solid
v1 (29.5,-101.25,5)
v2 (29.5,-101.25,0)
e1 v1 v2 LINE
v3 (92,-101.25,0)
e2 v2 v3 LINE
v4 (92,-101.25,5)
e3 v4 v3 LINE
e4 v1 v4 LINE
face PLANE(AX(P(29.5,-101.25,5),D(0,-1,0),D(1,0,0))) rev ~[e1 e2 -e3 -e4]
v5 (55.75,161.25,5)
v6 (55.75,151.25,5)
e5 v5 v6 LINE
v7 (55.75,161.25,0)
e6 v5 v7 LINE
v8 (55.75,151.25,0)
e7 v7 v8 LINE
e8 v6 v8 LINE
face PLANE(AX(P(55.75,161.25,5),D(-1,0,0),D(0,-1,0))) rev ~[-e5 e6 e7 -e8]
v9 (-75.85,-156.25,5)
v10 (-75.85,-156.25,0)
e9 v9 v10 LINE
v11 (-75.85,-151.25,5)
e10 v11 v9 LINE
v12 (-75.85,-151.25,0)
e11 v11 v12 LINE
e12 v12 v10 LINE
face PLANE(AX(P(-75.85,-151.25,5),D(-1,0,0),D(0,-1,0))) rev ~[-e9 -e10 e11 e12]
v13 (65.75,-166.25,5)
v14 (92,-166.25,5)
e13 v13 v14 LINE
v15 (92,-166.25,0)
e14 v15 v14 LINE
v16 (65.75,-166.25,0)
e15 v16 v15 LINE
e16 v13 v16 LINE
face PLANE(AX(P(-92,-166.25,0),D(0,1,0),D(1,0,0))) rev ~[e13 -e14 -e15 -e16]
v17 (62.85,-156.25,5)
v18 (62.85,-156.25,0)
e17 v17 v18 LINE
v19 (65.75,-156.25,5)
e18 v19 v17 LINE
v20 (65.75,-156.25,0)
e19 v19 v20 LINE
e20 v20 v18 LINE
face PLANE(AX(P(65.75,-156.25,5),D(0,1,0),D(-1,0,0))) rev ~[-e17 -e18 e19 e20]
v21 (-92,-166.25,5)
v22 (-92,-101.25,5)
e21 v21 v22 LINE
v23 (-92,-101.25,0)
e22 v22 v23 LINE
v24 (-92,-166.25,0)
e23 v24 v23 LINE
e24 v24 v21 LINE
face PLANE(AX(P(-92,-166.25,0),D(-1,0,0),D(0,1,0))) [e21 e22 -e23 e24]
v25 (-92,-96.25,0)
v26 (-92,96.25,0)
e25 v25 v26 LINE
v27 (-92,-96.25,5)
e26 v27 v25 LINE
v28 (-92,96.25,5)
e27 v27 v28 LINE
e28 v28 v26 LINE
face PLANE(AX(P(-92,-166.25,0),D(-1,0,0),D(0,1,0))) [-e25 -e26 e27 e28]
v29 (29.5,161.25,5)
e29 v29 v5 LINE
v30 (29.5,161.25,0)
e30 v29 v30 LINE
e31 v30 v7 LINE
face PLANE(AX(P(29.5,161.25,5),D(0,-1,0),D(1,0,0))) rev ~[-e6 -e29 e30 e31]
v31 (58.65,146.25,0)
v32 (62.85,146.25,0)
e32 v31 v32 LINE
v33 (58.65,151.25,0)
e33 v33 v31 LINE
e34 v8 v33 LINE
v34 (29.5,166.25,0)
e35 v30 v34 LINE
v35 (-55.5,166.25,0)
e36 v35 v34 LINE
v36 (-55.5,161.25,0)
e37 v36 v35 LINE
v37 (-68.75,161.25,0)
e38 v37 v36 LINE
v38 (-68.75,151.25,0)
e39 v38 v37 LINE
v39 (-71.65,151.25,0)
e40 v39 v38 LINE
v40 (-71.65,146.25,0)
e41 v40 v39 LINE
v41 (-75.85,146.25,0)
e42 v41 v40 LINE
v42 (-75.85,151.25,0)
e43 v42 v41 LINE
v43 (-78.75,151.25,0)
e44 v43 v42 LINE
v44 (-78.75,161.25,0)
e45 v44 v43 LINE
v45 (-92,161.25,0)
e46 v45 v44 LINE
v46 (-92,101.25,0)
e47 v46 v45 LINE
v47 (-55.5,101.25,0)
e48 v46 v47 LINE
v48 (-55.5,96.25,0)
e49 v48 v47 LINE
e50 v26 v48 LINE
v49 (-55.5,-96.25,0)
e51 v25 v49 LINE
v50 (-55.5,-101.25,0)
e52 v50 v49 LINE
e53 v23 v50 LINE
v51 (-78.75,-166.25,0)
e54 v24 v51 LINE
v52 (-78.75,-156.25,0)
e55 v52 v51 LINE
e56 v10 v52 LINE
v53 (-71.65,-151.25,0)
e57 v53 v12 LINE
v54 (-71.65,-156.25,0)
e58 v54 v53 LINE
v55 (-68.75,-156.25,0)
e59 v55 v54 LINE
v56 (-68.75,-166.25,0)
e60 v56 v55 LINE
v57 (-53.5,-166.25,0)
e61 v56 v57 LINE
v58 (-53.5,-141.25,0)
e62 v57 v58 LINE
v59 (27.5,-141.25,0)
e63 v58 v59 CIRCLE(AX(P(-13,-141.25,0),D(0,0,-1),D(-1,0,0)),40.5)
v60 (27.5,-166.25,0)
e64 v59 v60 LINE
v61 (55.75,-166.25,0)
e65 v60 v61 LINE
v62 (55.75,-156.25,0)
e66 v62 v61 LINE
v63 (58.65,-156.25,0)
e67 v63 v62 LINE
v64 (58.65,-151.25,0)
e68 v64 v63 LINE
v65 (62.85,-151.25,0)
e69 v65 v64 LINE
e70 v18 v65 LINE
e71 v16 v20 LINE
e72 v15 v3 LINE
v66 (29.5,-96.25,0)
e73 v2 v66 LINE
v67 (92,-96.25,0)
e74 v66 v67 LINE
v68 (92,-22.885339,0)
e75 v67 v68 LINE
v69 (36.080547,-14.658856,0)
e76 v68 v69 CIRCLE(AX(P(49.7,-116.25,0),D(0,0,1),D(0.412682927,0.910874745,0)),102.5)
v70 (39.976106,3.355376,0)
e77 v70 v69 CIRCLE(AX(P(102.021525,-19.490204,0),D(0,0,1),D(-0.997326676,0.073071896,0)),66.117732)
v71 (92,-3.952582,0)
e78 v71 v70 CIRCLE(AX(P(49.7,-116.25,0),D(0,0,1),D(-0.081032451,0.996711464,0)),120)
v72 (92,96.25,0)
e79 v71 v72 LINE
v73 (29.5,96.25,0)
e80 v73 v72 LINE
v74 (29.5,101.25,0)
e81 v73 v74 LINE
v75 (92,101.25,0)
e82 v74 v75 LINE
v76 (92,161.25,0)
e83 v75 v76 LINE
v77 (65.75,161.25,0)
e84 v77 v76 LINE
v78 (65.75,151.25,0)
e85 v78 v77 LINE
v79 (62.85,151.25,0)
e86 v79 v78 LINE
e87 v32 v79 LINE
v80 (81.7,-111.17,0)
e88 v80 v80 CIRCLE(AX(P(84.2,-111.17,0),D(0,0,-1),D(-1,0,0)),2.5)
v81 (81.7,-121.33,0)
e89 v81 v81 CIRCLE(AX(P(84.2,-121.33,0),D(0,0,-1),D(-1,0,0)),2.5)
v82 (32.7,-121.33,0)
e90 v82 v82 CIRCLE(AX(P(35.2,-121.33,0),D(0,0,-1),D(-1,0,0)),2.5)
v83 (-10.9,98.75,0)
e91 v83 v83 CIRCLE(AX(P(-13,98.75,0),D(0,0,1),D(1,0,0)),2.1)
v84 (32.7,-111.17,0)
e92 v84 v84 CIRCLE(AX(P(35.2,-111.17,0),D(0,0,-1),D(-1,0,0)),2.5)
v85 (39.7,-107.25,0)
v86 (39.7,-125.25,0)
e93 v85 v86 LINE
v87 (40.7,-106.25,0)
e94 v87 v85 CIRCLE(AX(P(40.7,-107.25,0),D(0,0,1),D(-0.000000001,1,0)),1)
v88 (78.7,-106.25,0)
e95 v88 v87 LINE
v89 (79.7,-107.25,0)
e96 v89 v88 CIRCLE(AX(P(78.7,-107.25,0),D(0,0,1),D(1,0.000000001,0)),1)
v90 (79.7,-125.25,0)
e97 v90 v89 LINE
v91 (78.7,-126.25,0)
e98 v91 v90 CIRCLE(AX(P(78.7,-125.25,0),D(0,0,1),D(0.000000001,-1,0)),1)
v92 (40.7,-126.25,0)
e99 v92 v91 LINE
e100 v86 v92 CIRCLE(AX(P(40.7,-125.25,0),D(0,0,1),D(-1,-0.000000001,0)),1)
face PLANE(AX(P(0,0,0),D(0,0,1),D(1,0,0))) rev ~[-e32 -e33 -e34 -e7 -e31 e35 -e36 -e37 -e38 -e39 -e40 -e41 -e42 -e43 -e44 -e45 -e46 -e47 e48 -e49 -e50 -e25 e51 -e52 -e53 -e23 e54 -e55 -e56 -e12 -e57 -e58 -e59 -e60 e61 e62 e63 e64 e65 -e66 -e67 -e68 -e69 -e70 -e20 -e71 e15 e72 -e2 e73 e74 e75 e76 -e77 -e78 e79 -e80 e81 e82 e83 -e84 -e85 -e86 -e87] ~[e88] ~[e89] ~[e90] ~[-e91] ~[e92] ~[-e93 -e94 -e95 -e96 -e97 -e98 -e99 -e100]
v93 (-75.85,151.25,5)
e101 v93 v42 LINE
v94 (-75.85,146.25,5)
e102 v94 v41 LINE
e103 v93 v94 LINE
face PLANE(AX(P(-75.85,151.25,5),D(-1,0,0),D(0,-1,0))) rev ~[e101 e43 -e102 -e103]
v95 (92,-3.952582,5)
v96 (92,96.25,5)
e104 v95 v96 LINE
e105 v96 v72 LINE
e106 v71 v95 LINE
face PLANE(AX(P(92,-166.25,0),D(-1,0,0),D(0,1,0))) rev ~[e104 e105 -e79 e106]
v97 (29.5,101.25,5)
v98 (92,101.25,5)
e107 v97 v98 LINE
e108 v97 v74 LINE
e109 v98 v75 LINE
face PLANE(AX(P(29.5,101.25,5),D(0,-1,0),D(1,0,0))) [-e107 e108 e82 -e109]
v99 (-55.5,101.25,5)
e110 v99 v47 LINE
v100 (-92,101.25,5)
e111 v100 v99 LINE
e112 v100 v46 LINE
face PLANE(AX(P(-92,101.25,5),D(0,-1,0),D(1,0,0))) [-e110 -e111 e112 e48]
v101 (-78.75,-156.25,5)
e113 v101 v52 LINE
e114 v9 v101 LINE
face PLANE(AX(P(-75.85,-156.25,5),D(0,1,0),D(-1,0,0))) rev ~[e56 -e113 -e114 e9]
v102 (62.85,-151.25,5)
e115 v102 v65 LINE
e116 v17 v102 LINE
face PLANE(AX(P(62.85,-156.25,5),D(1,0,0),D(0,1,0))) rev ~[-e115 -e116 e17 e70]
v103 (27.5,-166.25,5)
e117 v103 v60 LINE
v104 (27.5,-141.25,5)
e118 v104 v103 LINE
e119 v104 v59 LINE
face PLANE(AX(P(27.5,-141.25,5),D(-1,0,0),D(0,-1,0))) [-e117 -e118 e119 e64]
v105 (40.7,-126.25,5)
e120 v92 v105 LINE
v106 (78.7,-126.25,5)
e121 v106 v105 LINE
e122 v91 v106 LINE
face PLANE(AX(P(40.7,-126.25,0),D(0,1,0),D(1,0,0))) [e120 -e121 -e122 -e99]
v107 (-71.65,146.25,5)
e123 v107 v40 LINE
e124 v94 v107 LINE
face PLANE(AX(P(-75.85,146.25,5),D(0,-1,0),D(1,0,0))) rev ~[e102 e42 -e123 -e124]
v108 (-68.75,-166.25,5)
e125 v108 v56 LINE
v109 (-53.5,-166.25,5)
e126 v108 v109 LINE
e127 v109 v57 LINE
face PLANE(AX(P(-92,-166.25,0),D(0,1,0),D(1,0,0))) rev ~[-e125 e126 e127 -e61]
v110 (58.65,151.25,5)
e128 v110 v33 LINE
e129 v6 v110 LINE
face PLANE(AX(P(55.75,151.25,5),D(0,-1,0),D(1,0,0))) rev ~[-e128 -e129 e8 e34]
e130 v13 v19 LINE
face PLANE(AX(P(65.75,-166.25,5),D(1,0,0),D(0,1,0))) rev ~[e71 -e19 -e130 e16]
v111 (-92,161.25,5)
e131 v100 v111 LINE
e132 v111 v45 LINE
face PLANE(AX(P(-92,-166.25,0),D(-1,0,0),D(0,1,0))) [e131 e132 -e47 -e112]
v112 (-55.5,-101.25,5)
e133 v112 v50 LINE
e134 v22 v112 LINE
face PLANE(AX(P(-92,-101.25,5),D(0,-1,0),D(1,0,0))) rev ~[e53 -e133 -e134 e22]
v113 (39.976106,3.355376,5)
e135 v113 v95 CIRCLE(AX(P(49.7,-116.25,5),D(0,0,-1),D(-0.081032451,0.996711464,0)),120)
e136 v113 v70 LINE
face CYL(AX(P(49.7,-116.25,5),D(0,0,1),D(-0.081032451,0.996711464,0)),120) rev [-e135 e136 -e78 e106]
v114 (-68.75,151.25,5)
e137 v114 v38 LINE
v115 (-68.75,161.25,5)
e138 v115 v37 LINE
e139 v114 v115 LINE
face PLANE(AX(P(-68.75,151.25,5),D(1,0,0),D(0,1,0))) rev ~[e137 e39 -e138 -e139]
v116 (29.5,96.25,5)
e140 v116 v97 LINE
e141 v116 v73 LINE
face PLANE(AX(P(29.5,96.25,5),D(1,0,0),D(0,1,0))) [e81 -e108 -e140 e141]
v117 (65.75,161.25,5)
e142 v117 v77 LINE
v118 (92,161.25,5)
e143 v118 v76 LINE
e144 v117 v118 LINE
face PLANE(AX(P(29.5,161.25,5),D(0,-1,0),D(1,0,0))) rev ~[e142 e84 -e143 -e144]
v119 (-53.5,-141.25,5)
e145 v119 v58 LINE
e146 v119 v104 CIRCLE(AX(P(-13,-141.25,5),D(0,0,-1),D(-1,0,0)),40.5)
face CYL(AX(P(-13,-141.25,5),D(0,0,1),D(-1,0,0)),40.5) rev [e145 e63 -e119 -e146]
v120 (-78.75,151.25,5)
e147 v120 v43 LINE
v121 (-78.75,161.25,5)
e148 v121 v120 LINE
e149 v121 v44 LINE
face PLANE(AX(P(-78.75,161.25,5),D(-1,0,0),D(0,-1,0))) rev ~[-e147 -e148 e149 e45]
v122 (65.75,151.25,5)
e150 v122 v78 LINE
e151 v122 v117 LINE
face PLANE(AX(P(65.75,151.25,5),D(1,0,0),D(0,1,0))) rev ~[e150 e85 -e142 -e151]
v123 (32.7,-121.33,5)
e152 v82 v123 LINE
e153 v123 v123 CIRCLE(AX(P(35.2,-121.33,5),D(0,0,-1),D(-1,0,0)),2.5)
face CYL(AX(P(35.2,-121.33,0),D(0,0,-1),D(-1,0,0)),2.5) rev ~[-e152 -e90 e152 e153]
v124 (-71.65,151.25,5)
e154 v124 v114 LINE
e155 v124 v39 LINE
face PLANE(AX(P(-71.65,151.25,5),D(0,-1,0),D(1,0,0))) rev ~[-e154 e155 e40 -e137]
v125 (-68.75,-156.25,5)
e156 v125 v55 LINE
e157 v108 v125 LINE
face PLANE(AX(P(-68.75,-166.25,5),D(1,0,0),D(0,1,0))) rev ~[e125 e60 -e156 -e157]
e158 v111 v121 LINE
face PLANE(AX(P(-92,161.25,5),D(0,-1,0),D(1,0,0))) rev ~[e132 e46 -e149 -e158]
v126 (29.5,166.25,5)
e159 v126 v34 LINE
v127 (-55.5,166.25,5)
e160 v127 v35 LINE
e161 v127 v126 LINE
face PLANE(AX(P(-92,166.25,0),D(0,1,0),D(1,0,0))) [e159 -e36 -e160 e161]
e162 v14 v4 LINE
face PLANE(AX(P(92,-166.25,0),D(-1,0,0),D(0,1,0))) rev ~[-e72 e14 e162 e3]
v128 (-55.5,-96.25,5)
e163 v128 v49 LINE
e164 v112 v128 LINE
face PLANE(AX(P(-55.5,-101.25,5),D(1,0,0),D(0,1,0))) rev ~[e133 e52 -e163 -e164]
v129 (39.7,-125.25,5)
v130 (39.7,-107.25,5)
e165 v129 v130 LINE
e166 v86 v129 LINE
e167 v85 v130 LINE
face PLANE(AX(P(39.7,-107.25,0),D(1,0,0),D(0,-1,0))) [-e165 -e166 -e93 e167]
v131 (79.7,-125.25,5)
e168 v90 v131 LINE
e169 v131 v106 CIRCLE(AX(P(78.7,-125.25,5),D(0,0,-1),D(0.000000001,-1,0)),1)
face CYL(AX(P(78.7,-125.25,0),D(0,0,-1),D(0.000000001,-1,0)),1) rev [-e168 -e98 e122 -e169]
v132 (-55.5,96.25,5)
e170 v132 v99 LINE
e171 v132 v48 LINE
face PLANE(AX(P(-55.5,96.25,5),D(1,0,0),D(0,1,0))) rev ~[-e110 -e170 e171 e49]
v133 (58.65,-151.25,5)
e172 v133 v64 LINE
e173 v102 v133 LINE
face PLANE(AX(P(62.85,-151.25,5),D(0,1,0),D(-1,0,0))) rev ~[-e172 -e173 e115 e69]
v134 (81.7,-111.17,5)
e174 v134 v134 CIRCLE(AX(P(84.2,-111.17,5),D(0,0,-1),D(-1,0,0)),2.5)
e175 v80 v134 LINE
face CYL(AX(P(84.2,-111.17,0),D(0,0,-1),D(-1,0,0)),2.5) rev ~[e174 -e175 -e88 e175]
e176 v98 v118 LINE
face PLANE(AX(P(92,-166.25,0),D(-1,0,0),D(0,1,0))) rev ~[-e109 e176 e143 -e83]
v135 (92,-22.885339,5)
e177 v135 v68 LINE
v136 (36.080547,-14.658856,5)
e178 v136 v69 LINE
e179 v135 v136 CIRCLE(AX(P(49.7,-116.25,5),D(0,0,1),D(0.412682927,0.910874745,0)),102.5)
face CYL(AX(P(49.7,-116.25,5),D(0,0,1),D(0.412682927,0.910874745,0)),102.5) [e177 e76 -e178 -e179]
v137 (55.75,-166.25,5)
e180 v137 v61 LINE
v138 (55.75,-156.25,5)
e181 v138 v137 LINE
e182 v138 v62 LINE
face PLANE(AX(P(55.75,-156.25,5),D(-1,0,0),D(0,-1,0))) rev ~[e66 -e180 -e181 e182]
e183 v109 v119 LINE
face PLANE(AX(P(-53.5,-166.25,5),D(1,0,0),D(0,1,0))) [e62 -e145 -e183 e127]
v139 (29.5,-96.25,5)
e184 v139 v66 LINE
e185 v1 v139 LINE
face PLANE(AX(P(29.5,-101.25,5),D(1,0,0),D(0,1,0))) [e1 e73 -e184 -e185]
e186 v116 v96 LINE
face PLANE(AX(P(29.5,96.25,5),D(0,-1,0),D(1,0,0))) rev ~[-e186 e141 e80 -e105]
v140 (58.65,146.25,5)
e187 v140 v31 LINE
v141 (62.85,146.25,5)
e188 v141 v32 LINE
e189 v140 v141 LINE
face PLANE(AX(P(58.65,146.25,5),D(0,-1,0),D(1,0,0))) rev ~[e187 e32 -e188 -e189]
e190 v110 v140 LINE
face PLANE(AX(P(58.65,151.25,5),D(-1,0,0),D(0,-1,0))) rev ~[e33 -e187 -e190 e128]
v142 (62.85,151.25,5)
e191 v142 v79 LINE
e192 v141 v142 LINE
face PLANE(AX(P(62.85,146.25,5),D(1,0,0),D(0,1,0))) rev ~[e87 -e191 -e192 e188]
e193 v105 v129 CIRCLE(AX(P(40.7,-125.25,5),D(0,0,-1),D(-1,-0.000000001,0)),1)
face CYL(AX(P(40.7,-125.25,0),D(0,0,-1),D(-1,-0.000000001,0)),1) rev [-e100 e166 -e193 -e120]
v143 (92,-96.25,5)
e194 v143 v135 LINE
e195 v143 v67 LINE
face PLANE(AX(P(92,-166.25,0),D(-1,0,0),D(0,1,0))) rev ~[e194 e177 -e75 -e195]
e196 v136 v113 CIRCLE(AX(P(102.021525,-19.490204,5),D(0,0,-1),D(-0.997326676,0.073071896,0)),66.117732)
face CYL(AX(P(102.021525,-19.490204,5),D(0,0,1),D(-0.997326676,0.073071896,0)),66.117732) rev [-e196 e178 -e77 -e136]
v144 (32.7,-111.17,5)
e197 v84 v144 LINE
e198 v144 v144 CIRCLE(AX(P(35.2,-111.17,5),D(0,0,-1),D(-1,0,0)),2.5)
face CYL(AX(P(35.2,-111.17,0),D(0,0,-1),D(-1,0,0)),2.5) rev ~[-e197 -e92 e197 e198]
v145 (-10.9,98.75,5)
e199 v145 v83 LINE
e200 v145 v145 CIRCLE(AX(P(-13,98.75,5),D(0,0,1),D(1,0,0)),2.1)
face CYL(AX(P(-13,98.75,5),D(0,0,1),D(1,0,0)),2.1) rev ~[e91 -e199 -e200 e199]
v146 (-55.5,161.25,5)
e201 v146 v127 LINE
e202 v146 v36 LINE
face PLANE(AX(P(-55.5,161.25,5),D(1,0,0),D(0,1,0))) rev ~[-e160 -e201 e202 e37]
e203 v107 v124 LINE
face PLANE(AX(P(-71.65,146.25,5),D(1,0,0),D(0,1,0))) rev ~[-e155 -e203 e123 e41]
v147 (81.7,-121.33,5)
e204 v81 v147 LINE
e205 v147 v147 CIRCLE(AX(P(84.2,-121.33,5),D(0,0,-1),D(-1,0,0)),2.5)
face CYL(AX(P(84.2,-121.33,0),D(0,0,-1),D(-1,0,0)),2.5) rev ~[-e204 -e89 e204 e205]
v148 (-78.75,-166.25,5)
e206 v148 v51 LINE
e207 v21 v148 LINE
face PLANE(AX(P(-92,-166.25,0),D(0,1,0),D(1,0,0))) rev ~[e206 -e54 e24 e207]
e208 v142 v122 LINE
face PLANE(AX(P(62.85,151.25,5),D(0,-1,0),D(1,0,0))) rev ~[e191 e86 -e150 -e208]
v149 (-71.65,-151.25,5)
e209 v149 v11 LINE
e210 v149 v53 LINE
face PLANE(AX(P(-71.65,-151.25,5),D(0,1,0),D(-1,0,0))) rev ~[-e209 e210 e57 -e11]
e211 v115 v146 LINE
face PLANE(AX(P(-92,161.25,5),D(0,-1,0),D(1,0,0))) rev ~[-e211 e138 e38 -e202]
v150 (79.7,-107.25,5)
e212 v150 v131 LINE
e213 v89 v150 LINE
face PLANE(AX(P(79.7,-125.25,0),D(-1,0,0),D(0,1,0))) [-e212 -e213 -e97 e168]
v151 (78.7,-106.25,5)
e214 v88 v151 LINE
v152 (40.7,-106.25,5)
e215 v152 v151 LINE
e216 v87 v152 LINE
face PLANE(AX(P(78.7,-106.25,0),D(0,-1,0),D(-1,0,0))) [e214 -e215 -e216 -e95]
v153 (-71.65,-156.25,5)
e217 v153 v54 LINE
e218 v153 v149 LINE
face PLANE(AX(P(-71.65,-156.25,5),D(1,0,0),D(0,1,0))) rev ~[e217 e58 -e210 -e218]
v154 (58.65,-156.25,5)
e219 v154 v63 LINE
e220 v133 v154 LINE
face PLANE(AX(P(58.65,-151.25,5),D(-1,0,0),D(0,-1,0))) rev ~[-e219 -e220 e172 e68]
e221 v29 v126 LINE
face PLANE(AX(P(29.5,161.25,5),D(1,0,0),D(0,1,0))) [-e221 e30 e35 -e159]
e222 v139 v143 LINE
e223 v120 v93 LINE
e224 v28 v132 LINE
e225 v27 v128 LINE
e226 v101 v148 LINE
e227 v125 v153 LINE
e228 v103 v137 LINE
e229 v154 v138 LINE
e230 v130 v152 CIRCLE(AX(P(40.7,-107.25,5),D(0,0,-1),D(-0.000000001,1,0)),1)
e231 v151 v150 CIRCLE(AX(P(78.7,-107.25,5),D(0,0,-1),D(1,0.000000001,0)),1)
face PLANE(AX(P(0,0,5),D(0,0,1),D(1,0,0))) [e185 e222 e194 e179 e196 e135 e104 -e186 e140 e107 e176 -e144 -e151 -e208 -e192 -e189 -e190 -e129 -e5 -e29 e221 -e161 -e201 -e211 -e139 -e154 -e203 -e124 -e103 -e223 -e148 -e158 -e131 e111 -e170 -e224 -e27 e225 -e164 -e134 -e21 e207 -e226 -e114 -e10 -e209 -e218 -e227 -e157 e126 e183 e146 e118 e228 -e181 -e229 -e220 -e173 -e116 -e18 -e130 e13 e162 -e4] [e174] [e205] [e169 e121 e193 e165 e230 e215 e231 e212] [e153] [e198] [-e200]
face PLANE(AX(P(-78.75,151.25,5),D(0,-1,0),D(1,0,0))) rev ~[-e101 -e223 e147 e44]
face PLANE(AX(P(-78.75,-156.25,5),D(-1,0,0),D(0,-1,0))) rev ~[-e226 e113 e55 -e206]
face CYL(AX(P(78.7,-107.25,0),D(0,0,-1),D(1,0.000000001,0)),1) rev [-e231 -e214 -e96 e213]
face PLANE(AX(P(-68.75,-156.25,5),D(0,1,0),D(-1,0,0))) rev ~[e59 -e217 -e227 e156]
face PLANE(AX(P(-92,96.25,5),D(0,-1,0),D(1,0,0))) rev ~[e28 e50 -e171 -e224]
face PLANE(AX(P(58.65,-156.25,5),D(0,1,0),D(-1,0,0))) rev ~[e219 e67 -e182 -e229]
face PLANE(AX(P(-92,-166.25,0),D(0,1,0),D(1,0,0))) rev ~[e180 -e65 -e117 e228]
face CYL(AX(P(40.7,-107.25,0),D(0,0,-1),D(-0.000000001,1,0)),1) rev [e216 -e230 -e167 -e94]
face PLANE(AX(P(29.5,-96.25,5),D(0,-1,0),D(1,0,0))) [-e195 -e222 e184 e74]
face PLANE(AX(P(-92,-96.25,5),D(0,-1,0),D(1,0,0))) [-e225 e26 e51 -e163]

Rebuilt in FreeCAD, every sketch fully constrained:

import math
import FreeCAD as App
import Part
import Sketcher
from FreeCAD import Vector

doc = App.newDocument("Part")
body = doc.addObject("PartDesign::Body", "Body")

sketch1 = body.newObject("Sketcher::SketchObject", "Sketch")
sketch1.AttachmentSupport = (doc.getObject("XY_Plane"), [""])
sketch1.MapMode = "FlatFace"
sketch1.addGeometry(Part.LineSegment(Vector(-92, 166.25, 0), Vector(-92, -166.25, 0)), False)
sketch1.addGeometry(Part.LineSegment(Vector(-92, -166.25, 0), Vector(92, -166.25, 0)), False)
sketch1.addGeometry(Part.LineSegment(Vector(92, -166.25, 0), Vector(92, 166.25, 0)), False)
sketch1.addGeometry(Part.LineSegment(Vector(92, 166.25, 0), Vector(-92, 166.25, 0)), False)
sketch1.addConstraint(Sketcher.Constraint("Coincident", 0, 2, 1, 1))
sketch1.addConstraint(Sketcher.Constraint("Coincident", 1, 2, 2, 1))
sketch1.addConstraint(Sketcher.Constraint("Coincident", 2, 2, 3, 1))
sketch1.addConstraint(Sketcher.Constraint("Coincident", 3, 2, 0, 1))
sketch1.addConstraint(Sketcher.Constraint("Vertical", 0))
sketch1.addConstraint(Sketcher.Constraint("Horizontal", 1))
sketch1.addConstraint(Sketcher.Constraint("Vertical", 2))
sketch1.addConstraint(Sketcher.Constraint("Horizontal", 3))
sketch1.addConstraint(Sketcher.Constraint("Symmetric", 0, 2, 2, 2, -1, 1))
sketch1.addConstraint(Sketcher.Constraint("DistanceX", 1, 1, 1, 2, 184.0))
sketch1.addConstraint(Sketcher.Constraint("DistanceY", 0, 2, 0, 1, 332.5))
pad1 = body.newObject("PartDesign::Pad", "Pad")
pad1.Profile = sketch1
pad1.Length = 5

sketch2 = body.newObject("Sketcher::SketchObject", "Sketch001")
sketch2.AttachmentSupport = (doc.getObject("XY_Plane"), [""])
sketch2.MapMode = "FlatFace"
sketch2.AttachmentOffset = App.Placement(Vector(0, 0, 5), App.Rotation())
sketch2.addGeometry(Part.LineSegment(Vector(-92, -96.25, 0), Vector(-92, -101.25, 0)), False)
sketch2.addGeometry(Part.LineSegment(Vector(-92, -101.25, 0), Vector(-55.5, -101.25, 0)), False)
sketch2.addGeometry(Part.LineSegment(Vector(-55.5, -101.25, 0), Vector(-55.5, -96.25, 0)), False)
sketch2.addGeometry(Part.LineSegment(Vector(-55.5, -96.25, 0), Vector(-92, -96.25, 0)), False)
sketch2.addGeometry(Part.LineSegment(Vector(29.5, -96.25, 0), Vector(29.5, -101.25, 0)), False)
sketch2.addGeometry(Part.LineSegment(Vector(29.5, -101.25, 0), Vector(92, -101.25, 0)), False)
sketch2.addGeometry(Part.LineSegment(Vector(92, -101.25, 0), Vector(92, -96.25, 0)), False)
sketch2.addGeometry(Part.LineSegment(Vector(92, -96.25, 0), Vector(29.5, -96.25, 0)), False)
sketch2.addGeometry(Part.LineSegment(Vector(-92, 166.25, 0), Vector(-92, 161.25, 0)), False)
sketch2.addGeometry(Part.LineSegment(Vector(-92, 161.25, 0), Vector(-55.5, 161.25, 0)), False)
sketch2.addGeometry(Part.LineSegment(Vector(-55.5, 161.25, 0), Vector(-55.5, 166.25, 0)), False)
sketch2.addGeometry(Part.LineSegment(Vector(-55.5, 166.25, 0), Vector(-92, 166.25, 0)), False)
sketch2.addGeometry(Part.LineSegment(Vector(29.5, 166.25, 0), Vector(29.5, 161.25, 0)), False)
sketch2.addGeometry(Part.LineSegment(Vector(29.5, 161.25, 0), Vector(92, 161.25, 0)), False)
sketch2.addGeometry(Part.LineSegment(Vector(92, 161.25, 0), Vector(92, 166.25, 0)), False)
sketch2.addGeometry(Part.LineSegment(Vector(92, 166.25, 0), Vector(29.5, 166.25, 0)), False)
sketch2.addGeometry(Part.LineSegment(Vector(29.5, 101.25, 0), Vector(29.5, 96.25, 0)), False)
sketch2.addGeometry(Part.LineSegment(Vector(29.5, 96.25, 0), Vector(92, 96.25, 0)), False)
sketch2.addGeometry(Part.LineSegment(Vector(92, 96.25, 0), Vector(92, 101.25, 0)), False)
sketch2.addGeometry(Part.LineSegment(Vector(92, 101.25, 0), Vector(29.5, 101.25, 0)), False)
sketch2.addGeometry(Part.LineSegment(Vector(27.5, -166.25, 0), Vector(27.5, -141.25, 0)), False)
sketch2.addGeometry(Part.ArcOfCircle(Part.Circle(Vector(-13, -141.25, 0), Vector(0, 0, 1), 40.5), math.radians(0), math.radians(180)), False)
sketch2.addGeometry(Part.LineSegment(Vector(-53.5, -141.25, 0), Vector(-53.5, -166.25, 0)), False)
sketch2.addGeometry(Part.LineSegment(Vector(-53.5, -166.25, 0), Vector(27.5, -166.25, 0)), False)
sketch2.addGeometry(Part.LineSegment(Vector(-92, 101.25, 0), Vector(-92, 96.25, 0)), False)
sketch2.addGeometry(Part.LineSegment(Vector(-92, 96.25, 0), Vector(-55.5, 96.25, 0)), False)
sketch2.addGeometry(Part.LineSegment(Vector(-55.5, 96.25, 0), Vector(-55.5, 101.25, 0)), False)
sketch2.addGeometry(Part.LineSegment(Vector(-55.5, 101.25, 0), Vector(-92, 101.25, 0)), False)
sketch2.addConstraint(Sketcher.Constraint("Coincident", 0, 2, 1, 1))
sketch2.addConstraint(Sketcher.Constraint("Coincident", 1, 2, 2, 1))
sketch2.addConstraint(Sketcher.Constraint("Coincident", 2, 2, 3, 1))
sketch2.addConstraint(Sketcher.Constraint("Coincident", 3, 2, 0, 1))
sketch2.addConstraint(Sketcher.Constraint("Coincident", 4, 2, 5, 1))
sketch2.addConstraint(Sketcher.Constraint("Coincident", 5, 2, 6, 1))
sketch2.addConstraint(Sketcher.Constraint("Coincident", 6, 2, 7, 1))
sketch2.addConstraint(Sketcher.Constraint("Coincident", 7, 2, 4, 1))
sketch2.addConstraint(Sketcher.Constraint("Coincident", 8, 2, 9, 1))
sketch2.addConstraint(Sketcher.Constraint("Coincident", 9, 2, 10, 1))
sketch2.addConstraint(Sketcher.Constraint("Coincident", 10, 2, 11, 1))
sketch2.addConstraint(Sketcher.Constraint("Coincident", 11, 2, 8, 1))
sketch2.addConstraint(Sketcher.Constraint("Coincident", 12, 2, 13, 1))
sketch2.addConstraint(Sketcher.Constraint("Coincident", 13, 2, 14, 1))
sketch2.addConstraint(Sketcher.Constraint("Coincident", 14, 2, 15, 1))
sketch2.addConstraint(Sketcher.Constraint("Coincident", 15, 2, 12, 1))
sketch2.addConstraint(Sketcher.Constraint("Coincident", 16, 2, 17, 1))
sketch2.addConstraint(Sketcher.Constraint("Coincident", 17, 2, 18, 1))
sketch2.addConstraint(Sketcher.Constraint("Coincident", 18, 2, 19, 1))
sketch2.addConstraint(Sketcher.Constraint("Coincident", 19, 2, 16, 1))
sketch2.addConstraint(Sketcher.Constraint("Tangent", 20, 2, 21, 1))
sketch2.addConstraint(Sketcher.Constraint("Tangent", 21, 2, 22, 1))
sketch2.addConstraint(Sketcher.Constraint("Coincident", 22, 2, 23, 1))
sketch2.addConstraint(Sketcher.Constraint("Coincident", 23, 2, 20, 1))
sketch2.addConstraint(Sketcher.Constraint("Coincident", 24, 2, 25, 1))
sketch2.addConstraint(Sketcher.Constraint("Coincident", 25, 2, 26, 1))
sketch2.addConstraint(Sketcher.Constraint("Coincident", 26, 2, 27, 1))
sketch2.addConstraint(Sketcher.Constraint("Coincident", 27, 2, 24, 1))
sketch2.addConstraint(Sketcher.Constraint("Vertical", 0))
sketch2.addConstraint(Sketcher.Constraint("Horizontal", 1))
sketch2.addConstraint(Sketcher.Constraint("Vertical", 2))
sketch2.addConstraint(Sketcher.Constraint("Horizontal", 3))
sketch2.addConstraint(Sketcher.Constraint("Vertical", 4))
sketch2.addConstraint(Sketcher.Constraint("Horizontal", 5))
sketch2.addConstraint(Sketcher.Constraint("Vertical", 6))
sketch2.addConstraint(Sketcher.Constraint("Horizontal", 7))
sketch2.addConstraint(Sketcher.Constraint("Vertical", 8))
sketch2.addConstraint(Sketcher.Constraint("Horizontal", 9))
sketch2.addConstraint(Sketcher.Constraint("Vertical", 10))
sketch2.addConstraint(Sketcher.Constraint("Horizontal", 11))
sketch2.addConstraint(Sketcher.Constraint("Vertical", 12))
sketch2.addConstraint(Sketcher.Constraint("Horizontal", 13))
sketch2.addConstraint(Sketcher.Constraint("Vertical", 14))
sketch2.addConstraint(Sketcher.Constraint("Horizontal", 15))
sketch2.addConstraint(Sketcher.Constraint("Vertical", 16))
sketch2.addConstraint(Sketcher.Constraint("Horizontal", 17))
sketch2.addConstraint(Sketcher.Constraint("Vertical", 18))
sketch2.addConstraint(Sketcher.Constraint("Horizontal", 19))
sketch2.addConstraint(Sketcher.Constraint("Vertical", 20))
sketch2.addConstraint(Sketcher.Constraint("Vertical", 22))
sketch2.addConstraint(Sketcher.Constraint("Horizontal", 23))
sketch2.addConstraint(Sketcher.Constraint("Vertical", 24))
sketch2.addConstraint(Sketcher.Constraint("Horizontal", 25))
sketch2.addConstraint(Sketcher.Constraint("Vertical", 26))
sketch2.addConstraint(Sketcher.Constraint("Horizontal", 27))
sketch2.addConstraint(Sketcher.Constraint("Symmetric", 3, 2, 17, 2, -1, 1))
sketch2.addConstraint(Sketcher.Constraint("Symmetric", 6, 2, 24, 2, -1, 1))
sketch2.addConstraint(Sketcher.Constraint("Symmetric", 0, 2, 5, 2, -2))
sketch2.addConstraint(Sketcher.Constraint("Symmetric", 8, 2, 13, 2, -2))
sketch2.addConstraint(Sketcher.Constraint("Symmetric", 7, 2, 16, 2, -1))
sketch2.addConstraint(Sketcher.Constraint("Symmetric", 1, 2, 26, 2, -1))
sketch2.addConstraint(Sketcher.Constraint("Horizontal", 11, 2, 14, 2))
sketch2.addConstraint(Sketcher.Constraint("Horizontal", 19, 2, 26, 2))
sketch2.addConstraint(Sketcher.Constraint("Vertical", 3, 2, 8, 2))
sketch2.addConstraint(Sketcher.Constraint("Vertical", 2, 2, 9, 2))
sketch2.addConstraint(Sketcher.Constraint("Vertical", 7, 2, 12, 2))
sketch2.addConstraint(Sketcher.Constraint("Equal", 6, 8))
sketch2.addConstraint(Sketcher.Constraint("Radius", 21, 40.5))
sketch2.addConstraint(Sketcher.Constraint("DistanceY", 0, 2, 0, 1, 5.0))
sketch2.addConstraint(Sketcher.Constraint("DistanceY", 20, 1, 20, 2, 25.0))
sketch2.addConstraint(Sketcher.Constraint("DistanceX", 1, 1, 1, 2, 36.5))
sketch2.addConstraint(Sketcher.Constraint("DistanceX", 5, 1, 5, 2, 62.5))
sketch2.addConstraint(Sketcher.Constraint("DistanceX", 21, 3, -1, 1, 13.0))
sketch2.addConstraint(Sketcher.Constraint("DistanceX", 0, 2, -1, 1, 92.0))
sketch2.addConstraint(Sketcher.Constraint("DistanceY", 21, 3, 0, 2, 40.0))
sketch2.addConstraint(Sketcher.Constraint("DistanceY", 16, 2, 12, 2, 65.0))
sketch2.addConstraint(Sketcher.Constraint("DistanceY", 3, 2, 8, 2, 257.5))
pocket1 = body.newObject("PartDesign::Pocket", "Pocket")
pocket1.Profile = sketch2
pocket1.Length = 5

sketch3 = body.newObject("Sketcher::SketchObject", "Sketch002")
sketch3.AttachmentSupport = (doc.getObject("XY_Plane"), [""])
sketch3.MapMode = "FlatFace"
sketch3.AttachmentOffset = App.Placement(Vector(0, 0, 5), App.Rotation())
sketch3.addGeometry(Part.LineSegment(Vector(55.75, 161.25, 0), Vector(55.75, 151.25, 0)), False)
sketch3.addGeometry(Part.LineSegment(Vector(55.75, 151.25, 0), Vector(58.65, 151.25, 0)), False)
sketch3.addGeometry(Part.LineSegment(Vector(58.65, 151.25, 0), Vector(58.65, 146.25, 0)), False)
sketch3.addGeometry(Part.LineSegment(Vector(58.65, 146.25, 0), Vector(62.85, 146.25, 0)), False)
sketch3.addGeometry(Part.LineSegment(Vector(62.85, 146.25, 0), Vector(62.85, 151.25, 0)), False)
sketch3.addGeometry(Part.LineSegment(Vector(62.85, 151.25, 0), Vector(65.75, 151.25, 0)), False)
sketch3.addGeometry(Part.LineSegment(Vector(65.75, 151.25, 0), Vector(65.75, 161.25, 0)), False)
sketch3.addGeometry(Part.LineSegment(Vector(65.75, 161.25, 0), Vector(55.75, 161.25, 0)), False)
sketch3.addGeometry(Part.LineSegment(Vector(-78.75, 161.25, 0), Vector(-78.75, 151.25, 0)), False)
sketch3.addGeometry(Part.LineSegment(Vector(-78.75, 151.25, 0), Vector(-75.85, 151.25, 0)), False)
sketch3.addGeometry(Part.LineSegment(Vector(-75.85, 151.25, 0), Vector(-75.85, 146.25, 0)), False)
sketch3.addGeometry(Part.LineSegment(Vector(-75.85, 146.25, 0), Vector(-71.65, 146.25, 0)), False)
sketch3.addGeometry(Part.LineSegment(Vector(-71.65, 146.25, 0), Vector(-71.65, 151.25, 0)), False)
sketch3.addGeometry(Part.LineSegment(Vector(-71.65, 151.25, 0), Vector(-68.75, 151.25, 0)), False)
sketch3.addGeometry(Part.LineSegment(Vector(-68.75, 151.25, 0), Vector(-68.75, 161.25, 0)), False)
sketch3.addGeometry(Part.LineSegment(Vector(-68.75, 161.25, 0), Vector(-78.75, 161.25, 0)), False)
sketch3.addGeometry(Part.LineSegment(Vector(65.75, -166.25, 0), Vector(65.75, -156.25, 0)), False)
sketch3.addGeometry(Part.LineSegment(Vector(65.75, -156.25, 0), Vector(62.85, -156.25, 0)), False)
sketch3.addGeometry(Part.LineSegment(Vector(62.85, -156.25, 0), Vector(62.85, -151.25, 0)), False)
sketch3.addGeometry(Part.LineSegment(Vector(62.85, -151.25, 0), Vector(58.65, -151.25, 0)), False)
sketch3.addGeometry(Part.LineSegment(Vector(58.65, -151.25, 0), Vector(58.65, -156.25, 0)), False)
sketch3.addGeometry(Part.LineSegment(Vector(58.65, -156.25, 0), Vector(55.75, -156.25, 0)), False)
sketch3.addGeometry(Part.LineSegment(Vector(55.75, -156.25, 0), Vector(55.75, -166.25, 0)), False)
sketch3.addGeometry(Part.LineSegment(Vector(55.75, -166.25, 0), Vector(65.75, -166.25, 0)), False)
sketch3.addGeometry(Part.LineSegment(Vector(-68.75, -166.25, 0), Vector(-68.75, -156.25, 0)), False)
sketch3.addGeometry(Part.LineSegment(Vector(-68.75, -156.25, 0), Vector(-71.65, -156.25, 0)), False)
sketch3.addGeometry(Part.LineSegment(Vector(-71.65, -156.25, 0), Vector(-71.65, -151.25, 0)), False)
sketch3.addGeometry(Part.LineSegment(Vector(-71.65, -151.25, 0), Vector(-75.85, -151.25, 0)), False)
sketch3.addGeometry(Part.LineSegment(Vector(-75.85, -151.25, 0), Vector(-75.85, -156.25, 0)), False)
sketch3.addGeometry(Part.LineSegment(Vector(-75.85, -156.25, 0), Vector(-78.75, -156.25, 0)), False)
sketch3.addGeometry(Part.LineSegment(Vector(-78.75, -156.25, 0), Vector(-78.75, -166.25, 0)), False)
sketch3.addGeometry(Part.LineSegment(Vector(-78.75, -166.25, 0), Vector(-68.75, -166.25, 0)), False)
sketch3.addConstraint(Sketcher.Constraint("Coincident", 0, 2, 1, 1))
sketch3.addConstraint(Sketcher.Constraint("Coincident", 1, 2, 2, 1))
sketch3.addConstraint(Sketcher.Constraint("Coincident", 2, 2, 3, 1))
sketch3.addConstraint(Sketcher.Constraint("Coincident", 3, 2, 4, 1))
sketch3.addConstraint(Sketcher.Constraint("Coincident", 4, 2, 5, 1))
sketch3.addConstraint(Sketcher.Constraint("Coincident", 5, 2, 6, 1))
sketch3.addConstraint(Sketcher.Constraint("Coincident", 6, 2, 7, 1))
sketch3.addConstraint(Sketcher.Constraint("Coincident", 7, 2, 0, 1))
sketch3.addConstraint(Sketcher.Constraint("Coincident", 8, 2, 9, 1))
sketch3.addConstraint(Sketcher.Constraint("Coincident", 9, 2, 10, 1))
sketch3.addConstraint(Sketcher.Constraint("Coincident", 10, 2, 11, 1))
sketch3.addConstraint(Sketcher.Constraint("Coincident", 11, 2, 12, 1))
sketch3.addConstraint(Sketcher.Constraint("Coincident", 12, 2, 13, 1))
sketch3.addConstraint(Sketcher.Constraint("Coincident", 13, 2, 14, 1))
sketch3.addConstraint(Sketcher.Constraint("Coincident", 14, 2, 15, 1))
sketch3.addConstraint(Sketcher.Constraint("Coincident", 15, 2, 8, 1))
sketch3.addConstraint(Sketcher.Constraint("Coincident", 16, 2, 17, 1))
sketch3.addConstraint(Sketcher.Constraint("Coincident", 17, 2, 18, 1))
sketch3.addConstraint(Sketcher.Constraint("Coincident", 18, 2, 19, 1))
sketch3.addConstraint(Sketcher.Constraint("Coincident", 19, 2, 20, 1))
sketch3.addConstraint(Sketcher.Constraint("Coincident", 20, 2, 21, 1))
sketch3.addConstraint(Sketcher.Constraint("Coincident", 21, 2, 22, 1))
sketch3.addConstraint(Sketcher.Constraint("Coincident", 22, 2, 23, 1))
sketch3.addConstraint(Sketcher.Constraint("Coincident", 23, 2, 16, 1))
sketch3.addConstraint(Sketcher.Constraint("Coincident", 24, 2, 25, 1))
sketch3.addConstraint(Sketcher.Constraint("Coincident", 25, 2, 26, 1))
sketch3.addConstraint(Sketcher.Constraint("Coincident", 26, 2, 27, 1))
sketch3.addConstraint(Sketcher.Constraint("Coincident", 27, 2, 28, 1))
sketch3.addConstraint(Sketcher.Constraint("Coincident", 28, 2, 29, 1))
sketch3.addConstraint(Sketcher.Constraint("Coincident", 29, 2, 30, 1))
sketch3.addConstraint(Sketcher.Constraint("Coincident", 30, 2, 31, 1))
sketch3.addConstraint(Sketcher.Constraint("Coincident", 31, 2, 24, 1))
sketch3.addConstraint(Sketcher.Constraint("Vertical", 0))
sketch3.addConstraint(Sketcher.Constraint("Horizontal", 1))
sketch3.addConstraint(Sketcher.Constraint("Vertical", 2))
sketch3.addConstraint(Sketcher.Constraint("Horizontal", 3))
sketch3.addConstraint(Sketcher.Constraint("Vertical", 4))
sketch3.addConstraint(Sketcher.Constraint("Horizontal", 5))
sketch3.addConstraint(Sketcher.Constraint("Vertical", 6))
sketch3.addConstraint(Sketcher.Constraint("Horizontal", 7))
sketch3.addConstraint(Sketcher.Constraint("Vertical", 8))
sketch3.addConstraint(Sketcher.Constraint("Horizontal", 9))
sketch3.addConstraint(Sketcher.Constraint("Vertical", 10))
sketch3.addConstraint(Sketcher.Constraint("Horizontal", 11))
sketch3.addConstraint(Sketcher.Constraint("Vertical", 12))
sketch3.addConstraint(Sketcher.Constraint("Horizontal", 13))
sketch3.addConstraint(Sketcher.Constraint("Vertical", 14))
sketch3.addConstraint(Sketcher.Constraint("Horizontal", 15))
sketch3.addConstraint(Sketcher.Constraint("Vertical", 16))
sketch3.addConstraint(Sketcher.Constraint("Horizontal", 17))
sketch3.addConstraint(Sketcher.Constraint("Vertical", 18))
sketch3.addConstraint(Sketcher.Constraint("Horizontal", 19))
sketch3.addConstraint(Sketcher.Constraint("Vertical", 20))
sketch3.addConstraint(Sketcher.Constraint("Horizontal", 21))
sketch3.addConstraint(Sketcher.Constraint("Vertical", 22))
sketch3.addConstraint(Sketcher.Constraint("Horizontal", 23))
sketch3.addConstraint(Sketcher.Constraint("Vertical", 24))
sketch3.addConstraint(Sketcher.Constraint("Horizontal", 25))
sketch3.addConstraint(Sketcher.Constraint("Vertical", 26))
sketch3.addConstraint(Sketcher.Constraint("Horizontal", 27))
sketch3.addConstraint(Sketcher.Constraint("Vertical", 28))
sketch3.addConstraint(Sketcher.Constraint("Horizontal", 29))
sketch3.addConstraint(Sketcher.Constraint("Vertical", 30))
sketch3.addConstraint(Sketcher.Constraint("Horizontal", 31))
sketch3.addConstraint(Sketcher.Constraint("Symmetric", 4, 2, 18, 2, -1))
sketch3.addConstraint(Sketcher.Constraint("Symmetric", 1, 2, 19, 2, -1))
sketch3.addConstraint(Sketcher.Constraint("Symmetric", 12, 2, 26, 2, -1))
sketch3.addConstraint(Sketcher.Constraint("Symmetric", 9, 2, 27, 2, -1))
sketch3.addConstraint(Sketcher.Constraint("Horizontal", 5, 2, 8, 2))
sketch3.addConstraint(Sketcher.Constraint("Horizontal", 3, 2, 10, 2))
sketch3.addConstraint(Sketcher.Constraint("Horizontal", 7, 2, 14, 2))
sketch3.addConstraint(Sketcher.Constraint("Horizontal", 17, 2, 20, 2))
sketch3.addConstraint(Sketcher.Constraint("Horizontal", 21, 2, 24, 2))
sketch3.addConstraint(Sketcher.Constraint("Horizontal", 25, 2, 28, 2))
sketch3.addConstraint(Sketcher.Constraint("Horizontal", 23, 2, 30, 2))
sketch3.addConstraint(Sketcher.Constraint("Vertical", 6, 2, 16, 2))
sketch3.addConstraint(Sketcher.Constraint("Vertical", 7, 2, 21, 2))
sketch3.addConstraint(Sketcher.Constraint("Vertical", 14, 2, 24, 2))
sketch3.addConstraint(Sketcher.Constraint("Vertical", 15, 2, 29, 2))
sketch3.addConstraint(Sketcher.Constraint("Equal", 1, 5))
sketch3.addConstraint(Sketcher.Constraint("Equal", 5, 9))
sketch3.addConstraint(Sketcher.Constraint("Equal", 3, 11))
sketch3.addConstraint(Sketcher.Constraint("Equal", 9, 13))
sketch3.addConstraint(Sketcher.Constraint("Equal", 31, 0))
sketch3.addConstraint(Sketcher.Constraint("Equal", 14, 16))
sketch3.addConstraint(Sketcher.Constraint("Equal", 12, 18))
sketch3.addConstraint(Sketcher.Constraint("DistanceX", 7, 2, 7, 1, 10.0))
sketch3.addConstraint(Sketcher.Constraint("DistanceY", 2, 2, 2, 1, 5.0))
sketch3.addConstraint(Sketcher.Constraint("DistanceX", 1, 1, 1, 2, 2.9))
sketch3.addConstraint(Sketcher.Constraint("DistanceX", 8, 2, 0, 2, 134.5))
sketch3.addConstraint(Sketcher.Constraint("DistanceY", 16, 2, 3, 2, 302.5))
sketch3.addConstraint(Sketcher.Constraint("DistanceX", -1, 1, 0, 2, 55.75))
pocket2 = body.newObject("PartDesign::Pocket", "Pocket001")
pocket2.Profile = sketch3
pocket2.Length = 10

sketch4 = body.newObject("Sketcher::SketchObject", "Sketch003")
sketch4.AttachmentSupport = (doc.getObject("XY_Plane"), [""])
sketch4.MapMode = "FlatFace"
sketch4.AttachmentOffset = App.Placement(Vector(0, 0, 5), App.Rotation())
sketch4.addGeometry(Part.Circle(Vector(-13, 98.75, 0), Vector(0, 0, 1), 2.1), False)
sketch4.addConstraint(Sketcher.Constraint("Diameter", 0, 4.2))
sketch4.addConstraint(Sketcher.Constraint("DistanceX", 0, 3, -1, 1, 13.0))
sketch4.addConstraint(Sketcher.Constraint("DistanceY", -1, 1, 0, 3, 98.75))
pocket3 = body.newObject("PartDesign::Pocket", "Pocket002")
pocket3.Profile = sketch4
pocket3.Length = 10

sketch5 = body.newObject("Sketcher::SketchObject", "Sketch004")
sketch5.AttachmentSupport = (doc.getObject("XY_Plane"), [""])
sketch5.MapMode = "FlatFace"
sketch5.addGeometry(Part.Circle(Vector(35.2, -111.17, 0), Vector(0, 0, 1), 2.5), False)
sketch5.addGeometry(Part.Circle(Vector(35.2, -121.33, 0), Vector(0, 0, 1), 2.5), False)
sketch5.addGeometry(Part.Circle(Vector(84.2, -111.17, 0), Vector(0, 0, 1), 2.5), False)
sketch5.addGeometry(Part.Circle(Vector(84.2, -121.33, 0), Vector(0, 0, 1), 2.5), False)
sketch5.addGeometry(Part.ArcOfCircle(Part.Circle(Vector(40.7, -107.25, 0), Vector(0, 0, 1), 1), math.radians(90), math.radians(180)), False)
sketch5.addGeometry(Part.LineSegment(Vector(40.7, -106.25, 0), Vector(78.7, -106.25, 0)), False)
sketch5.addGeometry(Part.ArcOfCircle(Part.Circle(Vector(78.7, -107.25, 0), Vector(0, 0, 1), 1), math.radians(0), math.radians(90)), False)
sketch5.addGeometry(Part.LineSegment(Vector(79.7, -107.25, 0), Vector(79.7, -125.25, 0)), False)
sketch5.addGeometry(Part.ArcOfCircle(Part.Circle(Vector(78.7, -125.25, 0), Vector(0, 0, 1), 1), math.radians(-90), math.radians(0)), False)
sketch5.addGeometry(Part.LineSegment(Vector(78.7, -126.25, 0), Vector(40.7, -126.25, 0)), False)
sketch5.addGeometry(Part.ArcOfCircle(Part.Circle(Vector(40.7, -125.25, 0), Vector(0, 0, 1), 1), math.radians(-180), math.radians(-90)), False)
sketch5.addGeometry(Part.LineSegment(Vector(39.7, -125.25, 0), Vector(39.7, -107.25, 0)), False)
sketch5.addConstraint(Sketcher.Constraint("Tangent", 4, 1, 5, 1))
sketch5.addConstraint(Sketcher.Constraint("Tangent", 5, 2, 6, 2))
sketch5.addConstraint(Sketcher.Constraint("Tangent", 6, 1, 7, 1))
sketch5.addConstraint(Sketcher.Constraint("Tangent", 7, 2, 8, 2))
sketch5.addConstraint(Sketcher.Constraint("Tangent", 8, 1, 9, 1))
sketch5.addConstraint(Sketcher.Constraint("Tangent", 9, 2, 10, 2))
sketch5.addConstraint(Sketcher.Constraint("Tangent", 10, 1, 11, 1))
sketch5.addConstraint(Sketcher.Constraint("Tangent", 11, 2, 4, 2))
sketch5.addConstraint(Sketcher.Constraint("Horizontal", 5))
sketch5.addConstraint(Sketcher.Constraint("Vertical", 7))
sketch5.addConstraint(Sketcher.Constraint("Horizontal", 9))
sketch5.addConstraint(Sketcher.Constraint("Vertical", 11))
sketch5.addConstraint(Sketcher.Constraint("Equal", 0, 1))
sketch5.addConstraint(Sketcher.Constraint("Equal", 1, 2))
sketch5.addConstraint(Sketcher.Constraint("Equal", 2, 3))
sketch5.addConstraint(Sketcher.Constraint("Equal", 4, 6))
sketch5.addConstraint(Sketcher.Constraint("Equal", 6, 8))
sketch5.addConstraint(Sketcher.Constraint("Equal", 8, 10))
sketch5.addConstraint(Sketcher.Constraint("Horizontal", 0, 3, 2, 3))
sketch5.addConstraint(Sketcher.Constraint("Horizontal", 1, 3, 3, 3))
sketch5.addConstraint(Sketcher.Constraint("Vertical", 0, 3, 1, 3))
sketch5.addConstraint(Sketcher.Constraint("Vertical", 2, 3, 3, 3))
sketch5.addConstraint(Sketcher.Constraint("Diameter", 0, 5.0))
sketch5.addConstraint(Sketcher.Constraint("Radius", 4, 1.0))
sketch5.addConstraint(Sketcher.Constraint("DistanceX", 5, 1, 5, 2, 38.0))
sketch5.addConstraint(Sketcher.Constraint("DistanceY", 7, 2, 7, 1, 18.0))
sketch5.addConstraint(Sketcher.Constraint("DistanceX", 0, 3, 2, 3, 49.0))
sketch5.addConstraint(Sketcher.Constraint("DistanceX", -1, 1, 0, 3, 35.2))
sketch5.addConstraint(Sketcher.Constraint("DistanceX", -1, 1, 4, 3, 40.7))
sketch5.addConstraint(Sketcher.Constraint("DistanceY", 0, 3, -1, 1, 111.17))
sketch5.addConstraint(Sketcher.Constraint("DistanceY", 1, 3, -1, 1, 121.33))
sketch5.addConstraint(Sketcher.Constraint("DistanceY", 4, 3, -1, 1, 107.25))
pocket4 = body.newObject("PartDesign::Pocket", "Pocket003")
pocket4.Profile = sketch5
pocket4.Length = 20
pocket4.Reversed = True

sketch6 = body.newObject("Sketcher::SketchObject", "Sketch005")
sketch6.AttachmentSupport = (doc.getObject("XY_Plane"), [""])
sketch6.MapMode = "FlatFace"
sketch6.AttachmentOffset = App.Placement(Vector(0, 0, 5), App.Rotation())
sketch6.addGeometry(Part.LineSegment(Vector(92, -22.885339, 0), Vector(92.018319, -3.959485, 0)), False)
sketch6.addGeometry(Part.ArcOfCircle(Part.Circle(Vector(49.7, -116.25, 0), Vector(0, 0, 1), 120), math.radians(69.35035), math.radians(94.647914)), False)
sketch6.addGeometry(Part.ArcOfCircle(Part.Circle(Vector(102.021525, -19.490204, 0), Vector(0, 0, 1), 66.117732), math.radians(159.785922), math.radians(175.809554)), False)
sketch6.addGeometry(Part.ArcOfCircle(Part.Circle(Vector(49.7, -116.25, 0), Vector(0, 0, 1), 102.5), math.radians(65.626516), math.radians(97.635627)), False)
sketch6.addConstraint(Sketcher.Constraint("Coincident", 0, 2, 1, 1))
sketch6.addConstraint(Sketcher.Constraint("Coincident", 1, 2, 2, 1))
sketch6.addConstraint(Sketcher.Constraint("Coincident", 2, 2, 3, 2))
sketch6.addConstraint(Sketcher.Constraint("Coincident", 3, 1, 0, 1))
sketch6.addConstraint(Sketcher.Constraint("Coincident", 3, 3, 1, 3))
sketch6.addConstraint(Sketcher.Constraint("Radius", 1, 120.0))
sketch6.addConstraint(Sketcher.Constraint("Radius", 3, 102.5))
sketch6.addConstraint(Sketcher.Constraint("DistanceX", -1, 1, 3, 1, 92.0))
sketch6.addConstraint(Sketcher.Constraint("DistanceX", -1, 1, 1, 3, 49.7))
sketch6.addConstraint(Sketcher.Constraint("DistanceY", 1, 3, -1, 1, 116.25))
sketch6.addConstraint(Sketcher.Constraint("Radius", 2, 66.117732))
sketch6.addConstraint(Sketcher.Constraint("DistanceX", -1, 1, 0, 2, 92.018319))
sketch6.addConstraint(Sketcher.Constraint("DistanceY", 2, 3, 0, 2, 15.53072))
sketch6.addConstraint(Sketcher.Constraint("DistanceY", 0, 2, 1, 2, 7.31486))
pocket5 = body.newObject("PartDesign::Pocket", "Pocket004")
pocket5.Profile = sketch6
pocket5.Type = "ThroughAll"

doc.recompute()
